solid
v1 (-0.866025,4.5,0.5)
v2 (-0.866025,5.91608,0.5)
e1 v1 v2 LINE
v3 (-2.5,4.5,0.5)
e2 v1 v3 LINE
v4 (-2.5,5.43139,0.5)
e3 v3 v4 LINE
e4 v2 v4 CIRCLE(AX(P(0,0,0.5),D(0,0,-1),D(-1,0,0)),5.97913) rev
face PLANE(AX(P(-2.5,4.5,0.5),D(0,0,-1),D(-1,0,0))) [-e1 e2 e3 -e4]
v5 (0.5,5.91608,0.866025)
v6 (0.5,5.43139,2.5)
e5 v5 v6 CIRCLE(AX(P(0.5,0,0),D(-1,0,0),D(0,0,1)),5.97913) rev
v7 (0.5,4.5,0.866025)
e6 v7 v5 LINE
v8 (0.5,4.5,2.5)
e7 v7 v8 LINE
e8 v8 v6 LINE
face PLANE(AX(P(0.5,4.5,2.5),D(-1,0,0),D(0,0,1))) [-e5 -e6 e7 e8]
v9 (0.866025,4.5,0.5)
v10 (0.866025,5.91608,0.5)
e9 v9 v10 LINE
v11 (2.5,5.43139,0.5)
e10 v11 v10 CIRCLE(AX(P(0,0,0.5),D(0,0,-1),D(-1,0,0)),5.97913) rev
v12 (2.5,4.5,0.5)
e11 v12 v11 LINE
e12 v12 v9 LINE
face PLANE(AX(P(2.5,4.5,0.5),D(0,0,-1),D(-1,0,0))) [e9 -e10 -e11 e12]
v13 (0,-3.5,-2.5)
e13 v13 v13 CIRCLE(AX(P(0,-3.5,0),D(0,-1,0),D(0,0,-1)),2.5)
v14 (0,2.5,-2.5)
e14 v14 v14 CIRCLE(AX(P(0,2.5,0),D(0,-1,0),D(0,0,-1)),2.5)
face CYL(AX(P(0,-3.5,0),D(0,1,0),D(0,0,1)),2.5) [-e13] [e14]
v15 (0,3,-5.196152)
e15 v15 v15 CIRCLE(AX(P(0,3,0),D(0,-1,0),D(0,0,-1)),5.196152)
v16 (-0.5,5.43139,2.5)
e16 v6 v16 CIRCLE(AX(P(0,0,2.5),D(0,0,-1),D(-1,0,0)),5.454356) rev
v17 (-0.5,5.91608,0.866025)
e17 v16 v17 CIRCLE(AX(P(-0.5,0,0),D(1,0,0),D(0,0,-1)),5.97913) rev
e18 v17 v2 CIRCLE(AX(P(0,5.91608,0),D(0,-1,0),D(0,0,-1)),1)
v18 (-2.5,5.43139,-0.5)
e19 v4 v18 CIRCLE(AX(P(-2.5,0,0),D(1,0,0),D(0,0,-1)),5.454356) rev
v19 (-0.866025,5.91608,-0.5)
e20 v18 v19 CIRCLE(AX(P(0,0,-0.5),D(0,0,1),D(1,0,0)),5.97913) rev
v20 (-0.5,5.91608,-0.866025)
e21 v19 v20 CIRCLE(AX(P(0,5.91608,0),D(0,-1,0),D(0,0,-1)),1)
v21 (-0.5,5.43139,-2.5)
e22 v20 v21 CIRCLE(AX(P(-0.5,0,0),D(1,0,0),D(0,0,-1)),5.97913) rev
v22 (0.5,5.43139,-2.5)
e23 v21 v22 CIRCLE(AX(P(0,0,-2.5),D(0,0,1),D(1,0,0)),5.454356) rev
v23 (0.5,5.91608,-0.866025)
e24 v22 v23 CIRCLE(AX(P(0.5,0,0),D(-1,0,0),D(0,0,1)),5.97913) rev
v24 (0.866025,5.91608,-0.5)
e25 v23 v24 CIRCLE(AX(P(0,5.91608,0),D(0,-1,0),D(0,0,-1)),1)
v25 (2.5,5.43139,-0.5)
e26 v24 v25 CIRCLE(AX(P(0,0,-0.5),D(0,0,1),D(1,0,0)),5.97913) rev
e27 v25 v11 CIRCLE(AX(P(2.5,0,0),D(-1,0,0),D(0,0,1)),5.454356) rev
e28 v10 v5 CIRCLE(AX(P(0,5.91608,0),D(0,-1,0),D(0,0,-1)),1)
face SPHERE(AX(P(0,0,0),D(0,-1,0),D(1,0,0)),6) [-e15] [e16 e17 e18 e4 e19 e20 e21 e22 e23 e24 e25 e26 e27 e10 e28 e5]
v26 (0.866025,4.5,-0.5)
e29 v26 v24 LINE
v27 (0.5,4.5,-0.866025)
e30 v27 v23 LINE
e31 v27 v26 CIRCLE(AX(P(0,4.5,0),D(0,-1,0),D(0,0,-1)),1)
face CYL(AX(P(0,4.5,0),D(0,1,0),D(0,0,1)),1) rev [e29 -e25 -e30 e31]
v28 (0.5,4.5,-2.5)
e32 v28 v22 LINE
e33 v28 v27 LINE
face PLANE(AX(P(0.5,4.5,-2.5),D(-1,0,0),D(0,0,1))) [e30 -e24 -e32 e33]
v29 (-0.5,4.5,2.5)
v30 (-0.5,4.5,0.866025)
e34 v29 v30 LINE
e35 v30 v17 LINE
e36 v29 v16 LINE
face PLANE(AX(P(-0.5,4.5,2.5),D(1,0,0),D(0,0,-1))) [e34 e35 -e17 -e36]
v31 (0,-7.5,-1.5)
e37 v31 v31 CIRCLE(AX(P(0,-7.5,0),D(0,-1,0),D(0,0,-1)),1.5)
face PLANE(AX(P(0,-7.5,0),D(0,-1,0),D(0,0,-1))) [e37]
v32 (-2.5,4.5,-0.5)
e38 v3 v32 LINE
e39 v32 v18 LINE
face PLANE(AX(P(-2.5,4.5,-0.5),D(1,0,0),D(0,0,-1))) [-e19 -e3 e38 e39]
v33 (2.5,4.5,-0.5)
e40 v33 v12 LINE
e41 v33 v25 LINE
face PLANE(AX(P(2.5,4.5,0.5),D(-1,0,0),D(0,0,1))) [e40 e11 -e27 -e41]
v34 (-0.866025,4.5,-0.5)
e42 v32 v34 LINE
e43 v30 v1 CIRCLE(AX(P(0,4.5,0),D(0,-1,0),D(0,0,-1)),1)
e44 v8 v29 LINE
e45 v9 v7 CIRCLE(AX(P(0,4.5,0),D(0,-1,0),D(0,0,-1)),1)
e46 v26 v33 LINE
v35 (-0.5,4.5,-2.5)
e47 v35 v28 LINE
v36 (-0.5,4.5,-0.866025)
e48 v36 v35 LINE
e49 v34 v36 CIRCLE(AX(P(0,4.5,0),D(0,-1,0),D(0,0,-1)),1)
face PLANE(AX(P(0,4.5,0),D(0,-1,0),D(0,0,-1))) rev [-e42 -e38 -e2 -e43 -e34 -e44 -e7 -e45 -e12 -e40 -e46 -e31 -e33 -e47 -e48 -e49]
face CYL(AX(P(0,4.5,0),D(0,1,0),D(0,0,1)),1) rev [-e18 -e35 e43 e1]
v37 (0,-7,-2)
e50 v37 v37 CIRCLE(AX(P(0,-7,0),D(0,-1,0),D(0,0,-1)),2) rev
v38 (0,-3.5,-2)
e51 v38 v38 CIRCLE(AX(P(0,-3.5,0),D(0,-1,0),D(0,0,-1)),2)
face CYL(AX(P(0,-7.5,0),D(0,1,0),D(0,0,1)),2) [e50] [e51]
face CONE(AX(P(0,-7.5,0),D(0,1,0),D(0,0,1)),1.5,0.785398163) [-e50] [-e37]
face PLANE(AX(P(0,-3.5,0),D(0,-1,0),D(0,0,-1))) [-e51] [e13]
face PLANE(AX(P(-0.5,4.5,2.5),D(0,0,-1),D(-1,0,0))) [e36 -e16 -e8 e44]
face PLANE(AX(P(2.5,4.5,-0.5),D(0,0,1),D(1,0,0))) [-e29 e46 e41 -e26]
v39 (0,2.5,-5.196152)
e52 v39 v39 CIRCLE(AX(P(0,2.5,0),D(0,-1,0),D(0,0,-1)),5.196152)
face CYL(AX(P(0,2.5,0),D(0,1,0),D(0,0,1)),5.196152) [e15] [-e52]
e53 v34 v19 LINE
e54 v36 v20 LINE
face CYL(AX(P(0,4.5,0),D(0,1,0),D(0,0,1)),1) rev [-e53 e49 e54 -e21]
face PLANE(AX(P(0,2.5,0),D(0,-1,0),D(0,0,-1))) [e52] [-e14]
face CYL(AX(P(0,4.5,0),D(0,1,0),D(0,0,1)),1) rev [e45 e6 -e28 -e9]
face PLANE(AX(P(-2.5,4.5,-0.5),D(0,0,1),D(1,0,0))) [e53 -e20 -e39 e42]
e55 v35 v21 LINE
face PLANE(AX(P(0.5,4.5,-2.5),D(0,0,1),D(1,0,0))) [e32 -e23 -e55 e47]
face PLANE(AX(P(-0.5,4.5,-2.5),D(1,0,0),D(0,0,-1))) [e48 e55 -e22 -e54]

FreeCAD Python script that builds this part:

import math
import FreeCAD as App
import Part
import Sketcher
from FreeCAD import Vector
Q = App.Units.Quantity


def edges_at(feature, points):
    """Names of the edges that pass closest to the given points."""
    edges = feature.Shape.Edges
    near = lambda p: min(range(len(edges)), key=lambda i: edges[i].distToShape(Part.Vertex(*p))[0])
    return sorted({f"Edge{near(p) + 1}" for p in points})

doc = App.newDocument("Part")
body = doc.addObject("PartDesign::Body", "Body")

sketch1 = body.newObject("Sketcher::SketchObject", "Sketch")
sketch1.AttachmentSupport = (doc.getObject("XY_Plane"), [""])
sketch1.MapMode = "FlatFace"
sketch1.addGeometry(Part.LineSegment(Vector(0, 3, 0), Vector(5.2, 3, 0)), False)
sketch1.addGeometry(Part.ArcOfCircle(Part.Circle(Vector(0, 0, 0), Vector(0, 0, 1), 6), math.radians(30), math.radians(90)), False)
sketch1.addGeometry(Part.LineSegment(Vector(0, 6, 0), Vector(0, 3, 0)), False)
sketch1.addConstraint(Sketcher.Constraint("Coincident", 0, 2, 1, 1))
sketch1.addConstraint(Sketcher.Constraint("Coincident", 1, 2, 2, 1))
sketch1.addConstraint(Sketcher.Constraint("Coincident", 2, 2, 0, 1))
sketch1.addConstraint(Sketcher.Constraint("Horizontal", 0))
sketch1.addConstraint(Sketcher.Constraint("Vertical", 2))
sketch1.addConstraint(Sketcher.Constraint("Coincident", 1, 3, -1, 1))
sketch1.addConstraint(Sketcher.Constraint("PointOnObject", 1, 2, -2))
sketch1.addConstraint(Sketcher.Constraint("Radius", 1, Q("6 mm")))
sketch1.addConstraint(Sketcher.Constraint("DistanceY", 2, 2, 2, 1, Q("3 mm")))
revolution = body.newObject("PartDesign::Revolution", "Revolution")
revolution.Profile = sketch1
revolution.ReferenceAxis = (sketch1, ["V_Axis"])
revolution.Angle = 360

sketch2 = body.newObject("Sketcher::SketchObject", "Sketch001")
sketch2.AttachmentSupport = (doc.getObject("XZ_Plane"), [""])
sketch2.MapMode = "FlatFace"
sketch2.AttachmentOffset = App.Placement(Vector(0, 0, -3), App.Rotation())
sketch2.addGeometry(Part.Circle(Vector(0, 0, 0), Vector(0, 0, 1), 5), False)
sketch2.addConstraint(Sketcher.Constraint("Coincident", 0, 3, -1, 1))
sketch2.addConstraint(Sketcher.Constraint("Diameter", 0, Q("10.392305 mm")))
pad1 = body.newObject("PartDesign::Pad", "Pad")
pad1.Profile = sketch2
pad1.Length = 0.5

sketch3 = body.newObject("Sketcher::SketchObject", "Sketch002")
sketch3.AttachmentSupport = (doc.getObject("XZ_Plane"), [""])
sketch3.MapMode = "FlatFace"
sketch3.AttachmentOffset = App.Placement(Vector(0, 0, -2.5), App.Rotation())
sketch3.addGeometry(Part.Circle(Vector(0, 0, 0), Vector(0, 0, 1), 2.5), False)
sketch3.addConstraint(Sketcher.Constraint("Coincident", 0, 3, -1, 1))
sketch3.addConstraint(Sketcher.Constraint("Diameter", 0, Q("5 mm")))
pad2 = body.newObject("PartDesign::Pad", "Pad001")
pad2.Profile = sketch3
pad2.Length = 6

sketch4 = body.newObject("Sketcher::SketchObject", "Sketch003")
sketch4.AttachmentSupport = (doc.getObject("XZ_Plane"), [""])
sketch4.MapMode = "FlatFace"
sketch4.AttachmentOffset = App.Placement(Vector(0, 0, 3.5), App.Rotation())
sketch4.addGeometry(Part.Circle(Vector(0, 0, 0), Vector(0, 0, 1), 2), False)
sketch4.addConstraint(Sketcher.Constraint("Coincident", 0, 3, -1, 1))
sketch4.addConstraint(Sketcher.Constraint("Diameter", 0, Q("4 mm")))
pad3 = body.newObject("PartDesign::Pad", "Pad002")
pad3.Profile = sketch4
pad3.Length = 4
doc.recompute()

chamfer = body.newObject("PartDesign::Chamfer", "Chamfer")
chamfer.Base = (pad3, edges_at(pad3, [(-2, -7.5, 0)]))
chamfer.Size = 0.5

sketch5 = body.newObject("Sketcher::SketchObject", "Sketch004")
sketch5.AttachmentSupport = (doc.getObject("XZ_Plane"), [""])
sketch5.MapMode = "FlatFace"
sketch5.AttachmentOffset = App.Placement(Vector(0, 0, -6.5), App.Rotation())
sketch5.addGeometry(Part.LineSegment(Vector(-0.5, -0.9, 0), Vector(-0.5, -2.5, 0)), False)
sketch5.addGeometry(Part.LineSegment(Vector(-0.5, -2.5, 0), Vector(0.5, -2.5, 0)), False)
sketch5.addGeometry(Part.LineSegment(Vector(0.5, -2.5, 0), Vector(0.5, -0.9, 0)), False)
sketch5.addGeometry(Part.ArcOfCircle(Part.Circle(Vector(0, 0, 0), Vector(0, 0, 1), 1), math.radians(-60), math.radians(-30)), False)
sketch5.addGeometry(Part.LineSegment(Vector(0.9, -0.5, 0), Vector(2.5, -0.5, 0)), False)
sketch5.addGeometry(Part.LineSegment(Vector(2.5, -0.5, 0), Vector(2.5, 0.5, 0)), False)
sketch5.addGeometry(Part.LineSegment(Vector(2.5, 0.5, 0), Vector(0.9, 0.5, 0)), False)
sketch5.addGeometry(Part.ArcOfCircle(Part.Circle(Vector(0, 0, 0), Vector(0, 0, 1), 1), math.radians(30), math.radians(60)), False)
sketch5.addGeometry(Part.LineSegment(Vector(0.5, 0.9, 0), Vector(0.5, 2.5, 0)), False)
sketch5.addGeometry(Part.LineSegment(Vector(0.5, 2.5, 0), Vector(-0.5, 2.5, 0)), False)
sketch5.addGeometry(Part.LineSegment(Vector(-0.5, 2.5, 0), Vector(-0.5, 0.9, 0)), False)
sketch5.addGeometry(Part.ArcOfCircle(Part.Circle(Vector(0, 0, 0), Vector(0, 0, 1), 1), math.radians(120), math.radians(150)), False)
sketch5.addGeometry(Part.LineSegment(Vector(-0.9, 0.5, 0), Vector(-2.5, 0.5, 0)), False)
sketch5.addGeometry(Part.LineSegment(Vector(-2.5, 0.5, 0), Vector(-2.5, -0.5, 0)), False)
sketch5.addGeometry(Part.LineSegment(Vector(-2.5, -0.5, 0), Vector(-0.9, -0.5, 0)), False)
sketch5.addGeometry(Part.ArcOfCircle(Part.Circle(Vector(0, 0, 0), Vector(0, 0, 1), 1), math.radians(-150), math.radians(-120)), False)
sketch5.addConstraint(Sketcher.Constraint("Coincident", 0, 2, 1, 1))
sketch5.addConstraint(Sketcher.Constraint("Coincident", 1, 2, 2, 1))
sketch5.addConstraint(Sketcher.Constraint("Coincident", 2, 2, 3, 1))
sketch5.addConstraint(Sketcher.Constraint("Coincident", 3, 2, 4, 1))
sketch5.addConstraint(Sketcher.Constraint("Coincident", 4, 2, 5, 1))
sketch5.addConstraint(Sketcher.Constraint("Coincident", 5, 2, 6, 1))
sketch5.addConstraint(Sketcher.Constraint("Coincident", 6, 2, 7, 1))
sketch5.addConstraint(Sketcher.Constraint("Coincident", 7, 2, 8, 1))
sketch5.addConstraint(Sketcher.Constraint("Coincident", 8, 2, 9, 1))
sketch5.addConstraint(Sketcher.Constraint("Coincident", 9, 2, 10, 1))
sketch5.addConstraint(Sketcher.Constraint("Coincident", 10, 2, 11, 1))
sketch5.addConstraint(Sketcher.Constraint("Coincident", 11, 2, 12, 1))
sketch5.addConstraint(Sketcher.Constraint("Coincident", 12, 2, 13, 1))
sketch5.addConstraint(Sketcher.Constraint("Coincident", 13, 2, 14, 1))
sketch5.addConstraint(Sketcher.Constraint("Coincident", 14, 2, 15, 1))
sketch5.addConstraint(Sketcher.Constraint("Coincident", 15, 2, 0, 1))
sketch5.addConstraint(Sketcher.Constraint("Vertical", 0))
sketch5.addConstraint(Sketcher.Constraint("Horizontal", 1))
sketch5.addConstraint(Sketcher.Constraint("Vertical", 2))
sketch5.addConstraint(Sketcher.Constraint("Horizontal", 4))
sketch5.addConstraint(Sketcher.Constraint("Vertical", 5))
sketch5.addConstraint(Sketcher.Constraint("Horizontal", 6))
sketch5.addConstraint(Sketcher.Constraint("Vertical", 8))
sketch5.addConstraint(Sketcher.Constraint("Horizontal", 9))
sketch5.addConstraint(Sketcher.Constraint("Vertical", 10))
sketch5.addConstraint(Sketcher.Constraint("Horizontal", 12))
sketch5.addConstraint(Sketcher.Constraint("Vertical", 13))
sketch5.addConstraint(Sketcher.Constraint("Horizontal", 14))
sketch5.addConstraint(Sketcher.Constraint("Coincident", 3, 3, -1, 1))
sketch5.addConstraint(Sketcher.Constraint("Coincident", 7, 3, -1, 1))
sketch5.addConstraint(Sketcher.Constraint("Coincident", 11, 3, -1, 1))
sketch5.addConstraint(Sketcher.Constraint("Coincident", 15, 3, -1, 1))
sketch5.addConstraint(Sketcher.Constraint("Equal", 3, 7))
sketch5.addConstraint(Sketcher.Constraint("Equal", 7, 11))
sketch5.addConstraint(Sketcher.Constraint("Equal", 11, 15))
sketch5.addConstraint(Sketcher.Constraint("Symmetric", 0, 2, 8, 2, -1, 1))
sketch5.addConstraint(Sketcher.Constraint("Symmetric", 4, 2, 12, 2, -1, 1))
sketch5.addConstraint(Sketcher.Constraint("Horizontal", 7, 2, 10, 2))
sketch5.addConstraint(Sketcher.Constraint("Horizontal", 6, 2, 11, 2))
sketch5.addConstraint(Sketcher.Constraint("Horizontal", 4, 2, 13, 2))
sketch5.addConstraint(Sketcher.Constraint("Horizontal", 2, 2, 15, 2))
sketch5.addConstraint(Sketcher.Constraint("Equal", 14, 0))
sketch5.addConstraint(Sketcher.Constraint("Equal", 9, 5))
sketch5.addConstraint(Sketcher.Constraint("Radius", 3, Q("1 mm")))
sketch5.addConstraint(Sketcher.Constraint("DistanceX", 1, 1, 1, 2, Q("1 mm")))
sketch5.addConstraint(Sketcher.Constraint("DistanceX", 2, 2, 4, 2, Q("2 mm")))
pocket1 = body.newObject("PartDesign::Pocket", "Pocket")
pocket1.Profile = sketch5
pocket1.Length = 2
pocket1.Reversed = True

doc.recompute()
